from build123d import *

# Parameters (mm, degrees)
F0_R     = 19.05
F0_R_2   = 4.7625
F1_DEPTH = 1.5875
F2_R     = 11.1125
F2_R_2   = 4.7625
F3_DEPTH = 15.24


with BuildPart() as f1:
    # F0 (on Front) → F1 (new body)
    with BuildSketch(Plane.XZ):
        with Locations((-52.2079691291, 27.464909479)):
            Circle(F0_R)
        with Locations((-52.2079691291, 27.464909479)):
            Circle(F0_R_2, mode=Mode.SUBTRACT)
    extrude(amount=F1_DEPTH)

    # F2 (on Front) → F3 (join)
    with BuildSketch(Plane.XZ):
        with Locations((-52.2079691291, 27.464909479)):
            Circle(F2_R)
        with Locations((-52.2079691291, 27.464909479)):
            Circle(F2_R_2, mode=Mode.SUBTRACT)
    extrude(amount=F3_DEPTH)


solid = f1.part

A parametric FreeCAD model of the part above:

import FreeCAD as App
import Part
import Sketcher
Q = App.Units.Quantity

doc = App.newDocument("Part")
params = doc.addObject("Spreadsheet::Sheet", "Params")
for row, (alias, value) in enumerate([
    ("sketch1_diameter", "1.5 in"),
    ("sketch1_diameter2", "0.375 in"),
    ("pad1_length", "0.0625 in"),
    ("sketch2_diameter", "0.875 in"),
    ("sketch2_diameter2", "0.375 in"),
    ("pad2_length", "0.6 in"),
], start=1):
    params.set(f"A{row}", alias)
    params.set(f"B{row}", "=" + value)
    params.setAlias(f"B{row}", alias)

body = doc.addObject("PartDesign::Body", "Body")

sketch1 = body.newObject("Sketcher::SketchObject", "Sketch")
sketch1.AttachmentSupport = (doc.getObject("XZ_Plane"), [""])
sketch1.MapMode = "FlatFace"
sketch1.addGeometry([
    Part.Circle(App.Vector(-52.207969, 27.464909, 0), App.Vector(0, 0, 1), 19.05),
    Part.Circle(App.Vector(-52.207969, 27.464909, 0), App.Vector(0, 0, 1), 4.7625),
], False)
sketch1.addConstraint([
    Sketcher.Constraint("Coincident", 1, 3, 0, 3),
    Sketcher.Constraint("Diameter", 0, Q("1.5 in")),
    Sketcher.Constraint("Diameter", 1, Q("0.375 in")),
    Sketcher.Constraint("DistanceX", 0, 3, -1, 1, 52.207969),
    Sketcher.Constraint("DistanceY", -1, 1, 0, 3, 27.464909),
])
sketch1.setExpression("Constraints[1]", "Params.sketch1_diameter")
sketch1.setExpression("Constraints[2]", "Params.sketch1_diameter2")
pad1 = body.newObject("PartDesign::Pad", "Pad")
pad1.Profile = sketch1
pad1.setExpression("Length", "Params.pad1_length")

sketch2 = body.newObject("Sketcher::SketchObject", "Sketch001")
sketch2.AttachmentSupport = (doc.getObject("XZ_Plane"), [""])
sketch2.MapMode = "FlatFace"
sketch2.addGeometry([
    Part.Circle(App.Vector(-52.207969, 27.464909, 0), App.Vector(0, 0, 1), 11.1125),
    Part.Circle(App.Vector(-52.207969, 27.464909, 0), App.Vector(0, 0, 1), 4.7625),
], False)
sketch2.addConstraint([
    Sketcher.Constraint("Coincident", 1, 3, 0, 3),
    Sketcher.Constraint("Diameter", 0, Q("0.875 in")),
    Sketcher.Constraint("Diameter", 1, Q("0.375 in")),
    Sketcher.Constraint("DistanceX", 0, 3, -1, 1, 52.207969),
    Sketcher.Constraint("DistanceY", -1, 1, 0, 3, 27.464909),
])
sketch2.setExpression("Constraints[1]", "Params.sketch2_diameter")
sketch2.setExpression("Constraints[2]", "Params.sketch2_diameter2")
pad2 = body.newObject("PartDesign::Pad", "Pad001")
pad2.Profile = sketch2
pad2.setExpression("Length", "Params.pad2_length")

doc.recompute()
